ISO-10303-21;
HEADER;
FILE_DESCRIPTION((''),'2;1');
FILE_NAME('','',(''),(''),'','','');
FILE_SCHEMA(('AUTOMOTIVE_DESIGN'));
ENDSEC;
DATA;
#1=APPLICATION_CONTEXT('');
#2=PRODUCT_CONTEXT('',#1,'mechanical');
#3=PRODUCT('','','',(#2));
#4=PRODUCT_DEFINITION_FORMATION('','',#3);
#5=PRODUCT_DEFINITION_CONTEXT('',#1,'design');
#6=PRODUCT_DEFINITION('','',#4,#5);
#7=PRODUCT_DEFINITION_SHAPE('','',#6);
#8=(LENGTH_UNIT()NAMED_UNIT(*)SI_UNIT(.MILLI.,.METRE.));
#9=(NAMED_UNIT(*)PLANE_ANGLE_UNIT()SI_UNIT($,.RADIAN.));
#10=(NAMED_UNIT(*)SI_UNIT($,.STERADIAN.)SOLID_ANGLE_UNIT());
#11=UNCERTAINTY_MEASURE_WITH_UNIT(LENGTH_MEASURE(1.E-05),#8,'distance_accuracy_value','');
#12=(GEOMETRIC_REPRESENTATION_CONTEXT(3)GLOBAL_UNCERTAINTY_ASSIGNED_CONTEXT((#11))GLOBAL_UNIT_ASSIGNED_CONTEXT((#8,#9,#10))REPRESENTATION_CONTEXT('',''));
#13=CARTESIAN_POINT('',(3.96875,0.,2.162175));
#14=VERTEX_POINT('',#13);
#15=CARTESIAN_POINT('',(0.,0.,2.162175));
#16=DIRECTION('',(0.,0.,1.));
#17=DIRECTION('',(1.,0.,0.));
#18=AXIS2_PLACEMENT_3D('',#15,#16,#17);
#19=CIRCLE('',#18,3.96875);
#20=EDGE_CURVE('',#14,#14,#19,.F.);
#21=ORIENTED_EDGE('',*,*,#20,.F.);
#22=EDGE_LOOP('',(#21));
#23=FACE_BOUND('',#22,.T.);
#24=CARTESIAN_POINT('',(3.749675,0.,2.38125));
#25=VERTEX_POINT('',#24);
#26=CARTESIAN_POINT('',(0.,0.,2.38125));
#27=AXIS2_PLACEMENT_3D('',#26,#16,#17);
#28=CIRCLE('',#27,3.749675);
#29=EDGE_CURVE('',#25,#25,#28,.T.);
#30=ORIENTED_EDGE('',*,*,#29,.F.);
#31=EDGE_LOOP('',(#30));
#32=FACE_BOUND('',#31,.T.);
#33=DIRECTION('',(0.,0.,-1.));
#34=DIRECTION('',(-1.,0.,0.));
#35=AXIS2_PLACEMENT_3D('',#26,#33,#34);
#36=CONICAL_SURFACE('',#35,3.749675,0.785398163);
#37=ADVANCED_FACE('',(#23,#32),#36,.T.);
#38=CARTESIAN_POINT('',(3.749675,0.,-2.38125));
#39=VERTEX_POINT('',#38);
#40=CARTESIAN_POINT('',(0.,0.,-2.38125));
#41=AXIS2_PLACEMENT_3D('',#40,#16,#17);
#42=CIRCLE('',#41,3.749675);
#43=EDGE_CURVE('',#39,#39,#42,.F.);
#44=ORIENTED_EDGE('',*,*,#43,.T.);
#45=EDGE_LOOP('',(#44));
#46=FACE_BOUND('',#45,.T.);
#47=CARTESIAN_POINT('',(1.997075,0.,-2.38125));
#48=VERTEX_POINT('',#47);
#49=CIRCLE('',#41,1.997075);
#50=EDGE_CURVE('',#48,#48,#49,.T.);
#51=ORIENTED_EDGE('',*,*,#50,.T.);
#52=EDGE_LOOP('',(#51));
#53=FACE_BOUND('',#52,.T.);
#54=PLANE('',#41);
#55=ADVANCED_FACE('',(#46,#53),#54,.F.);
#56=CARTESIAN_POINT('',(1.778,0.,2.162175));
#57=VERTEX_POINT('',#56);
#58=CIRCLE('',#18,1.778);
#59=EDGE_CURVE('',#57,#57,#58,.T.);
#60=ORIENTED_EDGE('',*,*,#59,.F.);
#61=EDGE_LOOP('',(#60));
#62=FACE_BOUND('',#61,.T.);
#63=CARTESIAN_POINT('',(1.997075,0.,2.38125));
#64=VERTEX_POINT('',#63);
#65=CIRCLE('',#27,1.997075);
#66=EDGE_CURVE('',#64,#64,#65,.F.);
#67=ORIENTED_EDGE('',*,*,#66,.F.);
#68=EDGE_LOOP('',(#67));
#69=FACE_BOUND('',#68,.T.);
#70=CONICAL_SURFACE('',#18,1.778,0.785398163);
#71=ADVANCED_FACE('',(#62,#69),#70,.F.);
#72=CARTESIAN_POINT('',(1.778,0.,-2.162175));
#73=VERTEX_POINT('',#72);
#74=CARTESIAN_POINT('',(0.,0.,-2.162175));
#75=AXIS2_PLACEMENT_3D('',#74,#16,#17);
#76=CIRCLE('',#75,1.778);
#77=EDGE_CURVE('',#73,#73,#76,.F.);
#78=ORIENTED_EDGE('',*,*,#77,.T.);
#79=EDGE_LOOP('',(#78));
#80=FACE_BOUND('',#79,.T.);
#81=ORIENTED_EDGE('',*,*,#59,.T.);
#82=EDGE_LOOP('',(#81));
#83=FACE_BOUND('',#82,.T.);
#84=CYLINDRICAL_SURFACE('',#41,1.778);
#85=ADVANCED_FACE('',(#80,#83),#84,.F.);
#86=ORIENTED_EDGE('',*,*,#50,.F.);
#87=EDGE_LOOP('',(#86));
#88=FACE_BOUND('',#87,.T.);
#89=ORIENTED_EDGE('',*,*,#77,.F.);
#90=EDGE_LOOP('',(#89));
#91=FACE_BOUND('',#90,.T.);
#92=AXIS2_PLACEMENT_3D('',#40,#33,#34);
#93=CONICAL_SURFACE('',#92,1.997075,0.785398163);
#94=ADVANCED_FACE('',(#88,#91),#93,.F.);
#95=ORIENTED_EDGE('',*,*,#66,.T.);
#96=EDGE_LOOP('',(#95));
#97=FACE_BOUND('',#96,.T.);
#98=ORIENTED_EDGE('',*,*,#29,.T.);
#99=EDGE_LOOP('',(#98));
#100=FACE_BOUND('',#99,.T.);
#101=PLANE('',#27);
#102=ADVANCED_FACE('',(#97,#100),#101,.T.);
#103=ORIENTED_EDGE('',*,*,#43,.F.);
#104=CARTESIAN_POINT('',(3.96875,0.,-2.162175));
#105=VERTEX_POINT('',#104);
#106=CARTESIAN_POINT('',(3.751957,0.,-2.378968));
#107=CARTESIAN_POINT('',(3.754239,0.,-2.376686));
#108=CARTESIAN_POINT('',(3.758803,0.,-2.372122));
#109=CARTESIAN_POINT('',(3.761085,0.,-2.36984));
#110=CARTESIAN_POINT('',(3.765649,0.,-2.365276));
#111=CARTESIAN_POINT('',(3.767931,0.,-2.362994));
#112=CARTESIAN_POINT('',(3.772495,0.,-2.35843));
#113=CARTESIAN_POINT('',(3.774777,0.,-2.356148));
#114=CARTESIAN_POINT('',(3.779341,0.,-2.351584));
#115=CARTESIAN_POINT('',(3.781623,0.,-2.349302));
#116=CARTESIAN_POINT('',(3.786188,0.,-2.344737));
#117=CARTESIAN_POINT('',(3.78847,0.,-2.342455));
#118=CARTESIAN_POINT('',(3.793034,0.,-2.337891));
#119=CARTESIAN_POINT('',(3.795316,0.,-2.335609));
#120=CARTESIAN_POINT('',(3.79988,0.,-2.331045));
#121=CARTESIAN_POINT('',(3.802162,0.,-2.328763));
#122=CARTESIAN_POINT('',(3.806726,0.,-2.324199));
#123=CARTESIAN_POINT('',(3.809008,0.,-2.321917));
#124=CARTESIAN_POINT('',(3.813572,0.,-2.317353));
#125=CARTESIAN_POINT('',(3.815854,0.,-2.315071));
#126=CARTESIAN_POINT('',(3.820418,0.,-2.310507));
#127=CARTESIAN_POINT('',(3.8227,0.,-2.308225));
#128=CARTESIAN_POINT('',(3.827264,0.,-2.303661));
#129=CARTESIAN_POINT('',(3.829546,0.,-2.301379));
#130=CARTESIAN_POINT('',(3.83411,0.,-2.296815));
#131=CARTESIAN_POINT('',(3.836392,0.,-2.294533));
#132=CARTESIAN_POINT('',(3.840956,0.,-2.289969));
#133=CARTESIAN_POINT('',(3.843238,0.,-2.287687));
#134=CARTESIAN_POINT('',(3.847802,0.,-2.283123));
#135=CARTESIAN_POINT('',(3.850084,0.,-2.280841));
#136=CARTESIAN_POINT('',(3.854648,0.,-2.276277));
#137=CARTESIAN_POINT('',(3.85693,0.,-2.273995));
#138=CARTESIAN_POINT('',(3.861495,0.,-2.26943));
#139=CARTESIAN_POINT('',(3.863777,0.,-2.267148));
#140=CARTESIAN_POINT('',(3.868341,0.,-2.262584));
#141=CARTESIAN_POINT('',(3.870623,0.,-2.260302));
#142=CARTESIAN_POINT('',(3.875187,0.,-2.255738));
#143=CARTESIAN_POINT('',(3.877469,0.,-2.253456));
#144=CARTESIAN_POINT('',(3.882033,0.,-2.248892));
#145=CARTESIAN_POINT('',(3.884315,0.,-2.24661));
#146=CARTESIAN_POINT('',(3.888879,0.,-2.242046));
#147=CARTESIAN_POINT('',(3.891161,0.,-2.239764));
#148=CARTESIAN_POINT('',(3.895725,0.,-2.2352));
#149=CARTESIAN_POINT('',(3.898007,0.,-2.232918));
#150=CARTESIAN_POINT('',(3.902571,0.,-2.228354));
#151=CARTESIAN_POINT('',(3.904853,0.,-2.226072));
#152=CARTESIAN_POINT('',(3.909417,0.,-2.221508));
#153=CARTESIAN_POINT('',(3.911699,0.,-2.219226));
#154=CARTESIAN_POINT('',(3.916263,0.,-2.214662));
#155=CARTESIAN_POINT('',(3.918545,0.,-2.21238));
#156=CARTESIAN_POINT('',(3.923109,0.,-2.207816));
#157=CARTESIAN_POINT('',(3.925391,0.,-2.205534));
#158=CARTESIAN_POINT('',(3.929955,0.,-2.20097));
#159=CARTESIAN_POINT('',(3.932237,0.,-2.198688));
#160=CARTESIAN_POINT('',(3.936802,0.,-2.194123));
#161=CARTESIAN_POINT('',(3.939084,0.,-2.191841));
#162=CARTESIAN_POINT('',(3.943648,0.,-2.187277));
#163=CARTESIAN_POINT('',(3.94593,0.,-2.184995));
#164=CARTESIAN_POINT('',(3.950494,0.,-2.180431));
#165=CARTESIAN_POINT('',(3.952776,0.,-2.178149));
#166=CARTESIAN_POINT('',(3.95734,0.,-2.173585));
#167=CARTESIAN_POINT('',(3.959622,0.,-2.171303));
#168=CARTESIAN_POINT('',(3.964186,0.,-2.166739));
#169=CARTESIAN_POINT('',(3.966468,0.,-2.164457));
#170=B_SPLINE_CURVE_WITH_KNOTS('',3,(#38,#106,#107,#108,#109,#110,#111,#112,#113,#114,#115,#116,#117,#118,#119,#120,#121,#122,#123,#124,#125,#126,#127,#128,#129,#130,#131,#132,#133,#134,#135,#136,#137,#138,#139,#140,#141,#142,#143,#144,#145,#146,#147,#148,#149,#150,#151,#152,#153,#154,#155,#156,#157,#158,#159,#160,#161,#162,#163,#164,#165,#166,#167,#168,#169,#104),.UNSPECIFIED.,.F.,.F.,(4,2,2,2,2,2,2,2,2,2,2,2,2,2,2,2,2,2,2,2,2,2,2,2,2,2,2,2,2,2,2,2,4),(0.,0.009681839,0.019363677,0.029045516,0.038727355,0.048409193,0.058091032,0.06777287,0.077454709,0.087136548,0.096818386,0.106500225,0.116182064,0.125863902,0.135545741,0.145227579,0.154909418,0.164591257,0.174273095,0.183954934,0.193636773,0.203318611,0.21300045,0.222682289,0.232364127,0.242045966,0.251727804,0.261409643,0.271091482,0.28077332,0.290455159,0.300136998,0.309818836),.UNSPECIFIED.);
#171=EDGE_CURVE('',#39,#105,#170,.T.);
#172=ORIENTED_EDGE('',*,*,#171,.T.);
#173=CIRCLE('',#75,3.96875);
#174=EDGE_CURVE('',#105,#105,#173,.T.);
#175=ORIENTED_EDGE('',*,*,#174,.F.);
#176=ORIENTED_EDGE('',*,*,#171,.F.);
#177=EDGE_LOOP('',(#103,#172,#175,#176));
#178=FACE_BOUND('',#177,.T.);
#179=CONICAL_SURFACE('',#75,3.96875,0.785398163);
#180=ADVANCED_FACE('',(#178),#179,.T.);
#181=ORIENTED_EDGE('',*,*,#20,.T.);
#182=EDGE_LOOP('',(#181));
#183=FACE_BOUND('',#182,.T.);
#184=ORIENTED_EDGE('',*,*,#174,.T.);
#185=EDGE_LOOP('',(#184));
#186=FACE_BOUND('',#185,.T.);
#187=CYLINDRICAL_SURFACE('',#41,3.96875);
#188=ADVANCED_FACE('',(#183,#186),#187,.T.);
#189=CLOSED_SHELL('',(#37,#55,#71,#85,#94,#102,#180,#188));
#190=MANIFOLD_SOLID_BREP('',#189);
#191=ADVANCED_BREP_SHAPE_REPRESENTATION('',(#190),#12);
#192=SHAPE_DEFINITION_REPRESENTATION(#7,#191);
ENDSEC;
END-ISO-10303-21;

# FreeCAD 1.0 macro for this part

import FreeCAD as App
import Part
import Sketcher
Q = App.Units.Quantity


def edges_at(feature, points):
    """Names of the edges that pass closest to the given points."""
    edges = feature.Shape.Edges
    near = lambda p: min(range(len(edges)), key=lambda i: edges[i].distToShape(Part.Vertex(*p))[0])
    return sorted({f"Edge{near(p) + 1}" for p in points})

doc = App.newDocument("Part")
body = doc.addObject("PartDesign::Body", "Body")

# Sketch on XY plane
sketch1 = body.newObject("Sketcher::SketchObject", "Sketch")
sketch1.AttachmentSupport = (doc.getObject("XY_Plane"), [""])
sketch1.MapMode = "FlatFace"
sketch1.addGeometry([
    Part.Circle(App.Vector(0, 0, 0), App.Vector(0, 0, 1), 4),
    Part.Circle(App.Vector(0, 0, 0), App.Vector(0, 0, 1), 1.8),
], False)
sketch1.addConstraint([
    Sketcher.Constraint("Coincident", 0, 3, -1, 1),
    Sketcher.Constraint("Coincident", 1, 3, -1, 1),
    Sketcher.Constraint("Diameter", 1, Q("0.14 in")),
    Sketcher.Constraint("Diameter", 0, Q("0.3125 in")),
])
pad1 = body.newObject("PartDesign::Pad", "Pad")
pad1.Profile = sketch1
pad1.Type = "TwoLengths"
pad1.Length = Q("0.09375 in")
pad1.Length2 = Q("0.09375 in")
doc.recompute()

chamfer = body.newObject("PartDesign::Chamfer", "Chamfer")
chamfer.Base = (pad1, edges_at(pad1, [
    (-3.969, 0, -2.381),
    (-1.778, 0, -2.381),
    (-3.969, 0, 2.381),
    (-1.778, 0, 2.381),
]))
chamfer.Size = 0.219075

doc.recompute()
